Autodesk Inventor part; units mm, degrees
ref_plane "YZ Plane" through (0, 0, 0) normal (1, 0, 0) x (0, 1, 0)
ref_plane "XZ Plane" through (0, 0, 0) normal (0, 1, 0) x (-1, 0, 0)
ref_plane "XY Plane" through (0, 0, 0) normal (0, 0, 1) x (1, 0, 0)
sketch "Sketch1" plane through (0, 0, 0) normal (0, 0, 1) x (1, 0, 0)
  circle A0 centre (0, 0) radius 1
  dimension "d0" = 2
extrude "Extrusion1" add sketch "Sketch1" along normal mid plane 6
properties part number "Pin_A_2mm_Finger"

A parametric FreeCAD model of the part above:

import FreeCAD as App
import Part
import Sketcher
Q = App.Units.Quantity

doc = App.newDocument("Part")
params = doc.addObject("Spreadsheet::Sheet", "Params")
for row, (alias, value) in enumerate([
    ("sketch1_diameter", "2 mm"),
    ("pad1_length", "6 mm"),
], start=1):
    params.set(f"A{row}", alias)
    params.set(f"B{row}", "=" + value)
    params.setAlias(f"B{row}", alias)

body = doc.addObject("PartDesign::Body", "Body")

# Sketch on XY plane
sketch1 = doc.addObject("Sketcher::SketchObject", "Sketch")
body.addObject(sketch1)
sketch1.AttachmentSupport = (doc.XY_Plane, [""])
sketch1.MapMode = "FlatFace"
sketch1.addGeometry(Part.Circle(App.Vector(0, 0, 0), App.Vector(0, 0, 1), 1), False)
sketch1.addConstraint(Sketcher.Constraint("Coincident", 0, 3, -1, 1))
sketch1.addConstraint(Sketcher.Constraint("Diameter", 0, Q("2 mm")))
sketch1.setExpression("Constraints[1]", "Params.sketch1_diameter")
pad1 = doc.addObject("PartDesign::Pad", "Pad")
body.addObject(pad1)
pad1.Profile = sketch1
pad1.setExpression("Length", "Params.pad1_length")
pad1.Midplane = True

doc.recompute()
